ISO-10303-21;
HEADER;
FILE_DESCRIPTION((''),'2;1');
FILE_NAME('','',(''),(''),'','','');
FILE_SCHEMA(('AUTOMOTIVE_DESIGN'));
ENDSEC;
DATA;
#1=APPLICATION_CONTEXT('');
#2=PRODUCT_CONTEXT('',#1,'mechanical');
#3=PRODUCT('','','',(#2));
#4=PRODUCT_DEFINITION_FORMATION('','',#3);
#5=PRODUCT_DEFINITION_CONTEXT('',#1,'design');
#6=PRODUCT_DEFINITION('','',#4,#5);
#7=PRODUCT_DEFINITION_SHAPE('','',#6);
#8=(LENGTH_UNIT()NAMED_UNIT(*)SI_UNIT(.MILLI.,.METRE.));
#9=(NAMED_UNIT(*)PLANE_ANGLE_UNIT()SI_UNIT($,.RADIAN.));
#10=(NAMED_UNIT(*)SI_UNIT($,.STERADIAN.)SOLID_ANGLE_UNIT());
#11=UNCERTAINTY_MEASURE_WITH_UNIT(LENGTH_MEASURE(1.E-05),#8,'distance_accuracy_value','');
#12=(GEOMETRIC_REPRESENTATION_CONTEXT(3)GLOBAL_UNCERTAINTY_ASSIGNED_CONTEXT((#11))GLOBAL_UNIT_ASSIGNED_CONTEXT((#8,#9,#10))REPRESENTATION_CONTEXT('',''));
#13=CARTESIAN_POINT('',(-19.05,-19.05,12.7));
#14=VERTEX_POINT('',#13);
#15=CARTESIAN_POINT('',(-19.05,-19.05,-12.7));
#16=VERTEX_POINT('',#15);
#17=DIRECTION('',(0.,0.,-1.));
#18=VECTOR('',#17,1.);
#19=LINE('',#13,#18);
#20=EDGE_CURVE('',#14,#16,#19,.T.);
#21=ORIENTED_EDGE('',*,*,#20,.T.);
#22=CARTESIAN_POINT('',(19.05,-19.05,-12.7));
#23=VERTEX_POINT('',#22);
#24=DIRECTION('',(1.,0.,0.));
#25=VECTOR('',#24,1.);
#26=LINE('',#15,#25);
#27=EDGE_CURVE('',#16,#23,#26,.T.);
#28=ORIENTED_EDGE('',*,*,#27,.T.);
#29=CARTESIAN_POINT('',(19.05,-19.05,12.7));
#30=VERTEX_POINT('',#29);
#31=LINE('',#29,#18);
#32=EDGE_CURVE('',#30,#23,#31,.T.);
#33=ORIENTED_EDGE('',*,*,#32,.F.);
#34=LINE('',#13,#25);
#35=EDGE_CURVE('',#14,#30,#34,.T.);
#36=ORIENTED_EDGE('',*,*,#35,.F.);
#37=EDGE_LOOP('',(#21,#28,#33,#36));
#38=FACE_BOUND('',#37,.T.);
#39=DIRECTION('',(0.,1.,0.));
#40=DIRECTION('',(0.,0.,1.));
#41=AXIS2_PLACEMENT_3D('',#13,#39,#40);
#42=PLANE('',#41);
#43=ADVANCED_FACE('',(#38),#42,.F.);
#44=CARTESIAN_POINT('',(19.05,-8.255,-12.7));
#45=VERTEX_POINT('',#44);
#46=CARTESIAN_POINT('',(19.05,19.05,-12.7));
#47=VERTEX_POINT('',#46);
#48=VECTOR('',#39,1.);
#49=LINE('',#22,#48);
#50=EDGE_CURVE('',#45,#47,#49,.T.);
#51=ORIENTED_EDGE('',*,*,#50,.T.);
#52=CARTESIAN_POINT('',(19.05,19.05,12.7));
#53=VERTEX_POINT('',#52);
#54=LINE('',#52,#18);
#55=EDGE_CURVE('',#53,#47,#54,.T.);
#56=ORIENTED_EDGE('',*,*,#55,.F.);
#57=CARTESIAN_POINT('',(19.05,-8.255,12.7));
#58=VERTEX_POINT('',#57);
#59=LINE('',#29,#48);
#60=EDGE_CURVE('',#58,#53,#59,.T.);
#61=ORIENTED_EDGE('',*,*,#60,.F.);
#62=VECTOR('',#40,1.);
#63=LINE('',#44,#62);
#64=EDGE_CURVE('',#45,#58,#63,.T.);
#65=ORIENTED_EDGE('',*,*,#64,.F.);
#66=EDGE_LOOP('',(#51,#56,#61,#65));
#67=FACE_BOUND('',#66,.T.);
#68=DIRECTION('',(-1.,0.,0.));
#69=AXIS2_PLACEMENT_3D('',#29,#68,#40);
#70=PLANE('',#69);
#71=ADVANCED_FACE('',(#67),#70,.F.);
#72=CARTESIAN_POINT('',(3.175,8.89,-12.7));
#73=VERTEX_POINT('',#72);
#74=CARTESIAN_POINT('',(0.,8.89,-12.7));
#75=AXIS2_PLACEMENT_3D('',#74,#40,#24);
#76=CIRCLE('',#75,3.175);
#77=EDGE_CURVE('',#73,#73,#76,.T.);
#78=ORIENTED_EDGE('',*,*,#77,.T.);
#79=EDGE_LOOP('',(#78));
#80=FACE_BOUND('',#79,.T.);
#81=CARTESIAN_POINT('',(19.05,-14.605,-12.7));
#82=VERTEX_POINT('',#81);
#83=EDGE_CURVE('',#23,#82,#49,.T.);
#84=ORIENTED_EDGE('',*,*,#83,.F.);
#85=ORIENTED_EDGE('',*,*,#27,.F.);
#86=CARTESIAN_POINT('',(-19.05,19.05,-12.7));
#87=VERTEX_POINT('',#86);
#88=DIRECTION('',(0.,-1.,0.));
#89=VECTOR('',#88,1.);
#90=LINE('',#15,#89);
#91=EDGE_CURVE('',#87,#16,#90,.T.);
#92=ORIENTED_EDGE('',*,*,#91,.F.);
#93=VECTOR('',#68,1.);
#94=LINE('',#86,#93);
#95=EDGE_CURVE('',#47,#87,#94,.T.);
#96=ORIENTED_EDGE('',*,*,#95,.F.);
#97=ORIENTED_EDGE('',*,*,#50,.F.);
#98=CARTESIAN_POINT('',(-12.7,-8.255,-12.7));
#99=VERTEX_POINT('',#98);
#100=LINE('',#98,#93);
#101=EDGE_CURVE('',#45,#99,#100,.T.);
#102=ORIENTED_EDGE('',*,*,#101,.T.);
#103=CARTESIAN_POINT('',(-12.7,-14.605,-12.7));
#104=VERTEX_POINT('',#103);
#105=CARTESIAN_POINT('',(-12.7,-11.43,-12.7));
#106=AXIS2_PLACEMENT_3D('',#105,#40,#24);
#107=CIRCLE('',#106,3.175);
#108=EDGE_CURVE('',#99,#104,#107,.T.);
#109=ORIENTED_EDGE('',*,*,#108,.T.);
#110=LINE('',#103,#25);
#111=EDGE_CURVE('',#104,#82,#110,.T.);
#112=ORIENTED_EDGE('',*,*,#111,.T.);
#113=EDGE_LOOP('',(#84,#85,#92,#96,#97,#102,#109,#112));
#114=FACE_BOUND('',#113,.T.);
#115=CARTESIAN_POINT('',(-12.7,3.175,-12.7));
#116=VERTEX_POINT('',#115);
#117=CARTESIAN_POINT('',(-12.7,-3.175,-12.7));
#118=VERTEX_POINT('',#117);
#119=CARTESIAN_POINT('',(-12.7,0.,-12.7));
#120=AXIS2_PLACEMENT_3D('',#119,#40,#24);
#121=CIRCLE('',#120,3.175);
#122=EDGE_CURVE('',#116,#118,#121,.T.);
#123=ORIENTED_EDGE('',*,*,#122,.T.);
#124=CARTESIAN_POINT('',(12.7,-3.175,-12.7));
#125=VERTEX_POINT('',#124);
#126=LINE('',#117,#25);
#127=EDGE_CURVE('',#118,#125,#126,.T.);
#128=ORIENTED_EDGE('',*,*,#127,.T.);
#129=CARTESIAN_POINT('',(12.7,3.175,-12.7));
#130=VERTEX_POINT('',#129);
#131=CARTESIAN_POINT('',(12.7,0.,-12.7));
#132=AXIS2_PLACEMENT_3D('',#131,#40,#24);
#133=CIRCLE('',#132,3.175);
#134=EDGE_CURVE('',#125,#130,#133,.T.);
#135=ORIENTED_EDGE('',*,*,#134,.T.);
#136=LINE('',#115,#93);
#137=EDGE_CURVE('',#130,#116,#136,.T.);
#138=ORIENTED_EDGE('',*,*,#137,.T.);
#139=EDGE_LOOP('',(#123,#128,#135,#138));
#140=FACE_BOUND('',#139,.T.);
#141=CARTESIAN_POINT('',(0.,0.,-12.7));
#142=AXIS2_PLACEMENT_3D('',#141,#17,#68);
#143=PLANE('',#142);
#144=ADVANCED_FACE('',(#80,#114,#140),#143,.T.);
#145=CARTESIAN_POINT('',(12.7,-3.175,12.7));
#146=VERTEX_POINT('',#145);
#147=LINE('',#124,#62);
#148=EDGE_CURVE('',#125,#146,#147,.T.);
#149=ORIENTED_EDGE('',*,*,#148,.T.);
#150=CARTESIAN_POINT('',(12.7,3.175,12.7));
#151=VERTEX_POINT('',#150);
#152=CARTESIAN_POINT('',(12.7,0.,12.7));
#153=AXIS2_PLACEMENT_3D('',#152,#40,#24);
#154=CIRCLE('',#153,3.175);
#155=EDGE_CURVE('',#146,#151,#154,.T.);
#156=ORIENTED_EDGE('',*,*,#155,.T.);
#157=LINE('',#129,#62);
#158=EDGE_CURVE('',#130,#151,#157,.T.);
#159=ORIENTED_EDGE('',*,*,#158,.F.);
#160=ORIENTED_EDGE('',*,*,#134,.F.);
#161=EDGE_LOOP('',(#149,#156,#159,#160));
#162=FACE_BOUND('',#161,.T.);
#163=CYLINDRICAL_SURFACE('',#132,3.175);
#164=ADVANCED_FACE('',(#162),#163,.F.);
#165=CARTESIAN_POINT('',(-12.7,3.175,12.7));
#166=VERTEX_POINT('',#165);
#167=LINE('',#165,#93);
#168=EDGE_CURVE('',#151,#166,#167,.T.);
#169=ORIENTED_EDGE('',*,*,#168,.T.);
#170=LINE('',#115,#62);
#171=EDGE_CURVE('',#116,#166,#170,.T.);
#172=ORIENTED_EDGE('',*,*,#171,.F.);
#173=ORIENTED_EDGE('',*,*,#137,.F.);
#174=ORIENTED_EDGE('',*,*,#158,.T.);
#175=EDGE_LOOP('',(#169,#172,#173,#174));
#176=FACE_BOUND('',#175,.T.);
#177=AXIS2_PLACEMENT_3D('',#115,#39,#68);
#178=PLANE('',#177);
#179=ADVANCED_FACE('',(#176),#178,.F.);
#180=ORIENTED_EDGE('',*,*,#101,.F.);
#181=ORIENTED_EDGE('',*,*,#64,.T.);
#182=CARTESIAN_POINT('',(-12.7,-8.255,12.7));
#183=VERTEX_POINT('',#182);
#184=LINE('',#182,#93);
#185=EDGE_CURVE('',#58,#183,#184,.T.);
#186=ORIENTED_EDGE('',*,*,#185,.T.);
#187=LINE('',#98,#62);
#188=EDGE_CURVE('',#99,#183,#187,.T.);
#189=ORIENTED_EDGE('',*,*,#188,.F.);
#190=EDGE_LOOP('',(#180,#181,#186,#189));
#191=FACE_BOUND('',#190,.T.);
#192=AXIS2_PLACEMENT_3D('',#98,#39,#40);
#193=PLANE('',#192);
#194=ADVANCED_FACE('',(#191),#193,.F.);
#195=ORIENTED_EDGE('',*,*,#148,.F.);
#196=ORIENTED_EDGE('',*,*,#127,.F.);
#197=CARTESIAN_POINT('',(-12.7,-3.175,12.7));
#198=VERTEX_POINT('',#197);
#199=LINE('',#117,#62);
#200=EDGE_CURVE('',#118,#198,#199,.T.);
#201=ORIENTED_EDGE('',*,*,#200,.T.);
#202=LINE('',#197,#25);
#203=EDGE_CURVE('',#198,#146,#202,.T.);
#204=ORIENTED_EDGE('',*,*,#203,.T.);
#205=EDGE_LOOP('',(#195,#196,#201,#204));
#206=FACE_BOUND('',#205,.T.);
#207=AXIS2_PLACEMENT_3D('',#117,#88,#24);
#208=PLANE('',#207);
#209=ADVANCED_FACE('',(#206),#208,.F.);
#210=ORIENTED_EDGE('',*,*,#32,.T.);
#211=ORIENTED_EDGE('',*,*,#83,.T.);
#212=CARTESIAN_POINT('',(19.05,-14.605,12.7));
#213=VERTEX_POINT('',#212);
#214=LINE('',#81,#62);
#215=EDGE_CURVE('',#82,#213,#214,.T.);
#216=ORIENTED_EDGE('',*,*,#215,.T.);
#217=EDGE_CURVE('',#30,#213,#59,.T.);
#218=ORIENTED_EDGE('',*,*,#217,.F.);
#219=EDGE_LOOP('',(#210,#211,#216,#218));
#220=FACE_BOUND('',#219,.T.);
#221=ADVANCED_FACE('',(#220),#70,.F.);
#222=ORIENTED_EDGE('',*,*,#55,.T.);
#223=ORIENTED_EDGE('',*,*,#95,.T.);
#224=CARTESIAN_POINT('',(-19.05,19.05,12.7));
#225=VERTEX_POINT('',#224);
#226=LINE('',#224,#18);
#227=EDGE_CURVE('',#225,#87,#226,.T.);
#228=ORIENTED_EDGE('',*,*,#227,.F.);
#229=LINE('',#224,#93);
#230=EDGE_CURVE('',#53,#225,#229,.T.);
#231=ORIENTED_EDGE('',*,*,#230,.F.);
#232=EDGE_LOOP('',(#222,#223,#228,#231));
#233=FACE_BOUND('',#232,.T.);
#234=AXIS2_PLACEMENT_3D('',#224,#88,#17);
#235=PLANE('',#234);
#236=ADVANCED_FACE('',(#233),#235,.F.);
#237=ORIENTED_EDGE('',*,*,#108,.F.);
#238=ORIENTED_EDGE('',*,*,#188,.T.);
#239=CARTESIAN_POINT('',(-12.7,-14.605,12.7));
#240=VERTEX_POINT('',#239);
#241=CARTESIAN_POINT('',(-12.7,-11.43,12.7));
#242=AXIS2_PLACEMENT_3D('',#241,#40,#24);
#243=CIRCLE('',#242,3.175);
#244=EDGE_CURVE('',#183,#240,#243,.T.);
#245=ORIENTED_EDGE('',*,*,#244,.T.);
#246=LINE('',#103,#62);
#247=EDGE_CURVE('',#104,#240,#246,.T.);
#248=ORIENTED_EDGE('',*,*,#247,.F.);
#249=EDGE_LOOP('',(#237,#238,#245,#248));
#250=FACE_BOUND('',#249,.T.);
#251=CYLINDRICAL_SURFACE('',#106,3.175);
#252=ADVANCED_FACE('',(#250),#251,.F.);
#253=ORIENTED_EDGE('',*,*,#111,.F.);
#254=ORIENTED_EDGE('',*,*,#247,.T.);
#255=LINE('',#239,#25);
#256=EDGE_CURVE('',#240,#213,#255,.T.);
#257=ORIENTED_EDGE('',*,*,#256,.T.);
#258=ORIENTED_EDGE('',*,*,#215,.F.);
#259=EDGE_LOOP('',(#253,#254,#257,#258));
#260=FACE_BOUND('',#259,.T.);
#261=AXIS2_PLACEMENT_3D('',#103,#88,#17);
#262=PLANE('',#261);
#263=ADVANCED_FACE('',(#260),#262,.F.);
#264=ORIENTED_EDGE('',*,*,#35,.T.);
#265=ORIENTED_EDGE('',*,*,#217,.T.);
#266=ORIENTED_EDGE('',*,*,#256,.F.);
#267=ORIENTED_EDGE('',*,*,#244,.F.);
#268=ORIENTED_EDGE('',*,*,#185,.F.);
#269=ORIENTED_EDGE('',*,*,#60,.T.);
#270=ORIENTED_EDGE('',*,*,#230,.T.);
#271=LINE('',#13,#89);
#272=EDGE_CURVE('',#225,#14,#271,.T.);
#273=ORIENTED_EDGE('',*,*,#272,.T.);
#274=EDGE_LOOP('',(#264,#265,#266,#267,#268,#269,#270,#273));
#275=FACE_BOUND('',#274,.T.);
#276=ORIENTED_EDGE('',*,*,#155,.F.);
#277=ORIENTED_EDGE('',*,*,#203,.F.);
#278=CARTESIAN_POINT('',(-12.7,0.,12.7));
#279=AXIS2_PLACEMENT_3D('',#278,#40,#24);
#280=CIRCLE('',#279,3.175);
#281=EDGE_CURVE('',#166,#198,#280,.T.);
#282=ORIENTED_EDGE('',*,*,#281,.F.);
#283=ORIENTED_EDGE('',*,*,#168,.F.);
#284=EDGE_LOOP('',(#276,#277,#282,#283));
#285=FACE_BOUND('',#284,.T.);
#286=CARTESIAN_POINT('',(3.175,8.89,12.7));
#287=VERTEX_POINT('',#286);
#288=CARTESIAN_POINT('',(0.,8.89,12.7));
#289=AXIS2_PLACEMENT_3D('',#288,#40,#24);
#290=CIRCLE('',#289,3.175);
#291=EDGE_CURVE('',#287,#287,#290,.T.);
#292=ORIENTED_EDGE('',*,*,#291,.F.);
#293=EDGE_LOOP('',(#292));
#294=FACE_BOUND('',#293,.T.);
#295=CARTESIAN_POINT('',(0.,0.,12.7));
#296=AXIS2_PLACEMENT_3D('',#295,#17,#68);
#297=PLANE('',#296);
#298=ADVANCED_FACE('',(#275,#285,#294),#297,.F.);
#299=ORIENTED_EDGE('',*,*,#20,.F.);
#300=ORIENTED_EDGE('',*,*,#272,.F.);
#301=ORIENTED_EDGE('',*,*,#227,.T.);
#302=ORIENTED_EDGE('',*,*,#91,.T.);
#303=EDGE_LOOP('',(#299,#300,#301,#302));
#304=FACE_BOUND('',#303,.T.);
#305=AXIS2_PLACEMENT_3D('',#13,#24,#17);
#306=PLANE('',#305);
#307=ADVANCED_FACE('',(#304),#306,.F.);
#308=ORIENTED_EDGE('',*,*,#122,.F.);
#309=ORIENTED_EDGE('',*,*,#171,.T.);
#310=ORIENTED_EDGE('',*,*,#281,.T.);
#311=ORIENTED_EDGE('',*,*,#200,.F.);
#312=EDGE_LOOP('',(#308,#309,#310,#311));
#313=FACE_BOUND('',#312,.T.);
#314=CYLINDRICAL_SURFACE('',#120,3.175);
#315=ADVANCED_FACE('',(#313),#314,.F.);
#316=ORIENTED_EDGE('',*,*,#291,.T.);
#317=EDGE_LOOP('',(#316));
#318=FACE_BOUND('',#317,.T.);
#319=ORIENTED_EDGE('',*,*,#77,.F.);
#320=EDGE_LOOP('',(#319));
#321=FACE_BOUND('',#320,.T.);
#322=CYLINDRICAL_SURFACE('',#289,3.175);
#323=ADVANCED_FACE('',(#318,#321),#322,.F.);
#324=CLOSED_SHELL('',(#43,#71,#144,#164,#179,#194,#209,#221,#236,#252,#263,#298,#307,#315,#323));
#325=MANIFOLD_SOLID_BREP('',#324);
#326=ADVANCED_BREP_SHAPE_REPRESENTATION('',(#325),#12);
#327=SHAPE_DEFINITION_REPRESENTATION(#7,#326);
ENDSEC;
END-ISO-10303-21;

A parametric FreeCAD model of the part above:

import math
import FreeCAD as App
import Part
import Sketcher
Q = App.Units.Quantity


def add_polygon(sketch, points):
    """Adds a closed chain of lines whose ends are joined by coincident constraints."""
    first, n = sketch.GeometryCount, len(points)
    for a, b in zip(points, points[1:] + points[:1]):
        sketch.addGeometry(Part.LineSegment(App.Vector(*a, 0), App.Vector(*b, 0)), False)
    for i in range(n):
        sketch.addConstraint(Sketcher.Constraint("Coincident", first + i, 2, first + (i + 1) % n, 1))

doc = App.newDocument("Part")
params = doc.addObject("Spreadsheet::Sheet", "Params")
for row, (alias, value) in enumerate([
    ("sketch1_width", "1.5 in"),
    ("pad1_length", "1 in"),
    ("sketch2_radius", "0.125 in"),
    ("sketch2_width", "1.25 in"),
    ("pocket1_length", "1 in"),
    ("sketch3_diameter", "0.25 in"),
    ("hole_diameter", "0.25 in"),
    ("sketch4_width", "1 in"),
    ("sketch4_radius", "0.125 in"),
    ("pocket2_length", "1 in"),
], start=1):
    params.set(f"A{row}", alias)
    params.set(f"B{row}", "=" + value)
    params.setAlias(f"B{row}", alias)

body = doc.addObject("PartDesign::Body", "Body")

sketch1 = doc.addObject("Sketcher::SketchObject", "Sketch")
body.addObject(sketch1)
sketch1.AttachmentSupport = (doc.XY_Plane, [""])
sketch1.MapMode = "FlatFace"
add_polygon(sketch1, [(-19, 19), (-19, -19), (19, -19), (19, 19)])
sketch1.addConstraint([
    Sketcher.Constraint("Vertical", 0),
    Sketcher.Constraint("Horizontal", 1),
    Sketcher.Constraint("Vertical", 2),
    Sketcher.Constraint("Horizontal", 3),
    Sketcher.Constraint("Symmetric", 0, 2, 2, 2, -1, 1),
    Sketcher.Constraint("Equal", 3, 0),
    Sketcher.Constraint("DistanceX", 1, 1, 1, 2, Q("1.5 in")),
])
sketch1.setExpression("Constraints[10]", "Params.sketch1_width")
pad1 = doc.addObject("PartDesign::Pad", "Pad")
body.addObject(pad1)
pad1.Profile = sketch1
pad1.setExpression("Length", "Params.pad1_length")
pad1.Midplane = True

sketch2 = doc.addObject("Sketcher::SketchObject", "Sketch001")
body.addObject(sketch2)
sketch2.AttachmentSupport = (doc.XY_Plane, [""])
sketch2.MapMode = "FlatFace"
sketch2.AttachmentOffset = App.Placement(App.Vector(0, 0, 0.5 * 25.4), App.Rotation())
sketch2.addGeometry([
    Part.LineSegment(App.Vector(19.1, -8.3, 0), App.Vector(-12.7, -8.3, 0)),
    Part.ArcOfCircle(Part.Circle(App.Vector(-12.7, -11.4, 0), App.Vector(0, 0, 1), 3.2), math.radians(90), math.radians(270)),
    Part.LineSegment(App.Vector(-12.7, -14.6, 0), App.Vector(19.1, -14.6, 0)),
    Part.ArcOfCircle(Part.Circle(App.Vector(19.1, -11.4, 0), App.Vector(0, 0, 1), 3.2), math.radians(-90), math.radians(90)),
], False)
sketch2.addConstraint([
    Sketcher.Constraint("Tangent", 0, 2, 1, 1),
    Sketcher.Constraint("Tangent", 1, 2, 2, 1),
    Sketcher.Constraint("Tangent", 2, 2, 3, 1),
    Sketcher.Constraint("Tangent", 3, 2, 0, 1),
    Sketcher.Constraint("Horizontal", 0),
    Sketcher.Constraint("Horizontal", 2),
    Sketcher.Constraint("Radius", 1, Q("0.125 in")),
    Sketcher.Constraint("DistanceX", 0, 2, 0, 1, Q("1.25 in")),
    Sketcher.Constraint("DistanceX", 1, 3, -1, 1, Q("0.5 in")),
    Sketcher.Constraint("DistanceY", 1, 3, -1, 1, Q("0.45 in")),
])
sketch2.setExpression("Constraints[6]", "Params.sketch2_radius")
sketch2.setExpression("Constraints[7]", "Params.sketch2_width")
pocket1 = doc.addObject("PartDesign::Pocket", "Pocket")
body.addObject(pocket1)
pocket1.Profile = sketch2
pocket1.setExpression("Length", "Params.pocket1_length")

sketch3 = doc.addObject("Sketcher::SketchObject", "Sketch002")
body.addObject(sketch3)
sketch3.AttachmentSupport = (doc.XY_Plane, [""])
sketch3.MapMode = "FlatFace"
sketch3.AttachmentOffset = App.Placement(App.Vector(0, 0, 0.5 * 25.4), App.Rotation())
sketch3.addGeometry(Part.Circle(App.Vector(0, 8.9, 0), App.Vector(0, 0, 1), 3.2), False)
sketch3.addConstraint([
    Sketcher.Constraint("PointOnObject", 0, 3, -2),
    Sketcher.Constraint("Diameter", 0, Q("0.25 in")),
    Sketcher.Constraint("DistanceY", -1, 1, 0, 3, Q("0.35 in")),
])
sketch3.setExpression("Constraints[1]", "Params.sketch3_diameter")
doc.recompute()
hole = doc.addObject("PartDesign::Hole", "Hole")
body.addObject(hole)
hole.Profile = sketch3
hole.ThreadType = "None"
hole.setExpression("Diameter", "Params.hole_diameter")
hole.DepthType = "ThroughAll"

sketch4 = doc.addObject("Sketcher::SketchObject", "Sketch003")
body.addObject(sketch4)
sketch4.AttachmentSupport = (doc.XY_Plane, [""])
sketch4.MapMode = "FlatFace"
sketch4.AttachmentOffset = App.Placement(App.Vector(0, 0, 0.5 * 25.4), App.Rotation())
sketch4.addGeometry([
    Part.LineSegment(App.Vector(12.7, 3.2, 0), App.Vector(-12.7, 3.2, 0)),
    Part.ArcOfCircle(Part.Circle(App.Vector(-12.7, 0, 0), App.Vector(0, 0, 1), 3.2), math.radians(90), math.radians(270)),
    Part.LineSegment(App.Vector(-12.7, -3.2, 0), App.Vector(12.7, -3.2, 0)),
    Part.ArcOfCircle(Part.Circle(App.Vector(12.7, 0, 0), App.Vector(0, 0, 1), 3.2), math.radians(-90), math.radians(90)),
], False)
sketch4.addConstraint([
    Sketcher.Constraint("Tangent", 0, 2, 1, 1),
    Sketcher.Constraint("Tangent", 1, 2, 2, 1),
    Sketcher.Constraint("Tangent", 2, 2, 3, 1),
    Sketcher.Constraint("Tangent", 3, 2, 0, 1),
    Sketcher.Constraint("Horizontal", 0),
    Sketcher.Constraint("Horizontal", 2),
    Sketcher.Constraint("Symmetric", 1, 3, 3, 3, -1, 1),
    Sketcher.Constraint("DistanceX", 0, 2, 0, 1, Q("1 in")),
    Sketcher.Constraint("Radius", 1, Q("0.125 in")),
])
sketch4.setExpression("Constraints[7]", "Params.sketch4_width")
sketch4.setExpression("Constraints[8]", "Params.sketch4_radius")
pocket2 = doc.addObject("PartDesign::Pocket", "Pocket001")
body.addObject(pocket2)
pocket2.Profile = sketch4
pocket2.setExpression("Length", "Params.pocket2_length")

doc.recompute()
